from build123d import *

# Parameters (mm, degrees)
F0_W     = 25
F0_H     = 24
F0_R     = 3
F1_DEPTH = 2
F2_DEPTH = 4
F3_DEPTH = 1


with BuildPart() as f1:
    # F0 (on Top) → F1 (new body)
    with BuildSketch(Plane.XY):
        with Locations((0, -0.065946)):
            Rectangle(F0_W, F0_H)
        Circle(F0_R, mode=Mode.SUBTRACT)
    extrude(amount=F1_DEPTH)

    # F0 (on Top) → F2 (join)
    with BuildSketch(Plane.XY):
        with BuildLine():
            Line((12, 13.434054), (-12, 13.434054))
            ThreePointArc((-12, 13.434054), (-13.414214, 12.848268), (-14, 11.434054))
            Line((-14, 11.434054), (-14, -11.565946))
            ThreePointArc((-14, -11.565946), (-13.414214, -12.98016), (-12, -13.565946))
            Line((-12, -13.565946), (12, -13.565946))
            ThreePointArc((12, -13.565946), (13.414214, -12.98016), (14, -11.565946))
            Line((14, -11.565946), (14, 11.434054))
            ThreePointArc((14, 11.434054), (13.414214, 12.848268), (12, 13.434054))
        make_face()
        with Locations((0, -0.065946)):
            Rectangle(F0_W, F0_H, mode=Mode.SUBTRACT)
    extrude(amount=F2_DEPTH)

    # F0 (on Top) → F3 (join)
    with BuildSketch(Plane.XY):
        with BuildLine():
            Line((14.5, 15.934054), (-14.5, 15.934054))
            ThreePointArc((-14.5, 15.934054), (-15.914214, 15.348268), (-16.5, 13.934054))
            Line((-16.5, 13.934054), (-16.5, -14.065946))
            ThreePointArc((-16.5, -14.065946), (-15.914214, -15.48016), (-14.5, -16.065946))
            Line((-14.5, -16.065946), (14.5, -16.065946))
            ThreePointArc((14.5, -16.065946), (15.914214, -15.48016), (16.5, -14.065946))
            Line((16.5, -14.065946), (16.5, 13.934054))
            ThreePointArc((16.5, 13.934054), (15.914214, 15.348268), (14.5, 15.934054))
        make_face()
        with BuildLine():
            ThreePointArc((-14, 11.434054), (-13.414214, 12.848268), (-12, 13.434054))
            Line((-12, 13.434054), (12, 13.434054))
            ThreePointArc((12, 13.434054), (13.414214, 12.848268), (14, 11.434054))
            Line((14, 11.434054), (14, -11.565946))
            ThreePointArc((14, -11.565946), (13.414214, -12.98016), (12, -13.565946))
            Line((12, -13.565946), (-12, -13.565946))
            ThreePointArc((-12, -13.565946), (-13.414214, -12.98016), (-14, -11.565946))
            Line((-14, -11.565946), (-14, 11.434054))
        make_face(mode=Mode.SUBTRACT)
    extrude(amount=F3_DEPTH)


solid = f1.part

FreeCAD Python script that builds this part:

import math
import FreeCAD as App
import Part
import Sketcher
from FreeCAD import Vector
Q = App.Units.Quantity

doc = App.newDocument("Part")
body = doc.addObject("PartDesign::Body", "Body")

sketch1 = body.newObject("Sketcher::SketchObject", "Sketch")
sketch1.AttachmentSupport = (doc.getObject("XY_Plane"), [""])
sketch1.MapMode = "FlatFace"
sketch1.addGeometry(Part.LineSegment(Vector(-12.5, 11.934054, 0), Vector(-12.5, -12.065946, 0)), False)
sketch1.addGeometry(Part.LineSegment(Vector(-12.5, -12.065946, 0), Vector(12.5, -12.065946, 0)), False)
sketch1.addGeometry(Part.LineSegment(Vector(12.5, -12.065946, 0), Vector(12.5, 11.934054, 0)), False)
sketch1.addGeometry(Part.LineSegment(Vector(12.5, 11.934054, 0), Vector(-12.5, 11.934054, 0)), False)
sketch1.addGeometry(Part.Circle(Vector(0, 0, 0), Vector(0, 0, 1), 3), False)
sketch1.addConstraint(Sketcher.Constraint("Coincident", 0, 2, 1, 1))
sketch1.addConstraint(Sketcher.Constraint("Coincident", 1, 2, 2, 1))
sketch1.addConstraint(Sketcher.Constraint("Coincident", 2, 2, 3, 1))
sketch1.addConstraint(Sketcher.Constraint("Coincident", 3, 2, 0, 1))
sketch1.addConstraint(Sketcher.Constraint("Vertical", 0))
sketch1.addConstraint(Sketcher.Constraint("Horizontal", 1))
sketch1.addConstraint(Sketcher.Constraint("Vertical", 2))
sketch1.addConstraint(Sketcher.Constraint("Horizontal", 3))
sketch1.addConstraint(Sketcher.Constraint("Coincident", 4, 3, -1, 1))
sketch1.addConstraint(Sketcher.Constraint("Diameter", 4, Q("6 mm")))
sketch1.addConstraint(Sketcher.Constraint("DistanceX", 1, 1, 1, 2, Q("25 mm")))
sketch1.addConstraint(Sketcher.Constraint("DistanceY", 0, 2, 0, 1, Q("24 mm")))
sketch1.addConstraint(Sketcher.Constraint("DistanceX", 0, 2, -1, 1, Q("12.5 mm")))
sketch1.addConstraint(Sketcher.Constraint("DistanceY", 0, 2, -1, 1, Q("12.065946 mm")))
pad1 = body.newObject("PartDesign::Pad", "Pad")
pad1.Profile = sketch1
pad1.Length = 2

sketch2 = body.newObject("Sketcher::SketchObject", "Sketch001")
sketch2.AttachmentSupport = (doc.getObject("XY_Plane"), [""])
sketch2.MapMode = "FlatFace"
sketch2.addGeometry(Part.LineSegment(Vector(12, 13.434054, 0), Vector(-12, 13.434054, 0)), False)
sketch2.addGeometry(Part.ArcOfCircle(Part.Circle(Vector(-12.000001, 11.434055, 0), Vector(0, 0, 1), 1.999999), math.radians(89.999957), math.radians(180.000043)), False)
sketch2.addGeometry(Part.LineSegment(Vector(-14, 11.434054, 0), Vector(-14, -11.565946, 0)), False)
sketch2.addGeometry(Part.ArcOfCircle(Part.Circle(Vector(-12.000001, -11.565947, 0), Vector(0, 0, 1), 1.999999), math.radians(179.999957), math.radians(270.000043)), False)
sketch2.addGeometry(Part.LineSegment(Vector(-12, -13.565946, 0), Vector(12, -13.565946, 0)), False)
sketch2.addGeometry(Part.ArcOfCircle(Part.Circle(Vector(12.000001, -11.565947, 0), Vector(0, 0, 1), 1.999999), math.radians(-90.000043), math.radians(0.000043)), False)
sketch2.addGeometry(Part.LineSegment(Vector(14, -11.565946, 0), Vector(14, 11.434054, 0)), False)
sketch2.addGeometry(Part.ArcOfCircle(Part.Circle(Vector(12.000001, 11.434055, 0), Vector(0, 0, 1), 1.999999), math.radians(-0.000043), math.radians(90.000043)), False)
sketch2.addGeometry(Part.LineSegment(Vector(12.5, -12.065946, 0), Vector(-12.5, -12.065946, 0)), False)
sketch2.addGeometry(Part.LineSegment(Vector(-12.5, -12.065946, 0), Vector(-12.5, 11.934054, 0)), False)
sketch2.addGeometry(Part.LineSegment(Vector(-12.5, 11.934054, 0), Vector(12.5, 11.934054, 0)), False)
sketch2.addGeometry(Part.LineSegment(Vector(12.5, 11.934054, 0), Vector(12.5, -12.065946, 0)), False)
sketch2.addConstraint(Sketcher.Constraint("Tangent", 0, 2, 1, 1))
sketch2.addConstraint(Sketcher.Constraint("Tangent", 1, 2, 2, 1))
sketch2.addConstraint(Sketcher.Constraint("Tangent", 2, 2, 3, 1))
sketch2.addConstraint(Sketcher.Constraint("Tangent", 3, 2, 4, 1))
sketch2.addConstraint(Sketcher.Constraint("Tangent", 4, 2, 5, 1))
sketch2.addConstraint(Sketcher.Constraint("Tangent", 5, 2, 6, 1))
sketch2.addConstraint(Sketcher.Constraint("Tangent", 6, 2, 7, 1))
sketch2.addConstraint(Sketcher.Constraint("Tangent", 7, 2, 0, 1))
sketch2.addConstraint(Sketcher.Constraint("Coincident", 8, 2, 9, 1))
sketch2.addConstraint(Sketcher.Constraint("Coincident", 9, 2, 10, 1))
sketch2.addConstraint(Sketcher.Constraint("Coincident", 10, 2, 11, 1))
sketch2.addConstraint(Sketcher.Constraint("Coincident", 11, 2, 8, 1))
sketch2.addConstraint(Sketcher.Constraint("Horizontal", 0))
sketch2.addConstraint(Sketcher.Constraint("Vertical", 2))
sketch2.addConstraint(Sketcher.Constraint("Horizontal", 4))
sketch2.addConstraint(Sketcher.Constraint("Vertical", 6))
sketch2.addConstraint(Sketcher.Constraint("Horizontal", 8))
sketch2.addConstraint(Sketcher.Constraint("Vertical", 9))
sketch2.addConstraint(Sketcher.Constraint("Horizontal", 10))
sketch2.addConstraint(Sketcher.Constraint("Vertical", 11))
sketch2.addConstraint(Sketcher.Constraint("Equal", 1, 3))
sketch2.addConstraint(Sketcher.Constraint("Equal", 3, 5))
sketch2.addConstraint(Sketcher.Constraint("Equal", 5, 7))
sketch2.addConstraint(Sketcher.Constraint("Equal", 4, 9))
sketch2.addConstraint(Sketcher.Constraint("Radius", 1, Q("1.999999 mm")))
sketch2.addConstraint(Sketcher.Constraint("DistanceX", 0, 2, 0, 1, Q("24 mm")))
sketch2.addConstraint(Sketcher.Constraint("DistanceX", 8, 2, 8, 1, Q("25 mm")))
sketch2.addConstraint(Sketcher.Constraint("DistanceY", 2, 2, 2, 1, Q("23 mm")))
sketch2.addConstraint(Sketcher.Constraint("DistanceX", 1, 3, -1, 1, Q("12.000001 mm")))
sketch2.addConstraint(Sketcher.Constraint("DistanceX", 8, 2, -1, 1, Q("12.5 mm")))
sketch2.addConstraint(Sketcher.Constraint("DistanceY", 8, 2, 3, 3, Q("0.499999 mm")))
sketch2.addConstraint(Sketcher.Constraint("DistanceY", -1, 1, 1, 3, Q("11.434055 mm")))
pad2 = body.newObject("PartDesign::Pad", "Pad001")
pad2.Profile = sketch2
pad2.Length = 4

sketch3 = body.newObject("Sketcher::SketchObject", "Sketch002")
sketch3.AttachmentSupport = (doc.getObject("XY_Plane"), [""])
sketch3.MapMode = "FlatFace"
sketch3.addGeometry(Part.LineSegment(Vector(14.5, 15.934054, 0), Vector(-14.5, 15.934054, 0)), False)
sketch3.addGeometry(Part.ArcOfCircle(Part.Circle(Vector(-14.500001, 13.934055, 0), Vector(0, 0, 1), 1.999999), math.radians(89.999957), math.radians(180.000043)), False)
sketch3.addGeometry(Part.LineSegment(Vector(-16.5, 13.934054, 0), Vector(-16.5, -14.065946, 0)), False)
sketch3.addGeometry(Part.ArcOfCircle(Part.Circle(Vector(-14.500001, -14.065947, 0), Vector(0, 0, 1), 1.999999), math.radians(179.999957), math.radians(270.000043)), False)
sketch3.addGeometry(Part.LineSegment(Vector(-14.5, -16.065946, 0), Vector(14.5, -16.065946, 0)), False)
sketch3.addGeometry(Part.ArcOfCircle(Part.Circle(Vector(14.500001, -14.065947, 0), Vector(0, 0, 1), 1.999999), math.radians(-90.000043), math.radians(0.000043)), False)
sketch3.addGeometry(Part.LineSegment(Vector(16.5, -14.065946, 0), Vector(16.5, 13.934054, 0)), False)
sketch3.addGeometry(Part.ArcOfCircle(Part.Circle(Vector(14.500001, 13.934055, 0), Vector(0, 0, 1), 1.999999), math.radians(-0.000043), math.radians(90.000043)), False)
sketch3.addGeometry(Part.LineSegment(Vector(-14, -11.565946, 0), Vector(-14, 11.434054, 0)), False)
sketch3.addGeometry(Part.ArcOfCircle(Part.Circle(Vector(-12.000001, 11.434055, 0), Vector(0, 0, 1), 1.999999), math.radians(89.999957), math.radians(180.000043)), False)
sketch3.addGeometry(Part.LineSegment(Vector(-12, 13.434054, 0), Vector(12, 13.434054, 0)), False)
sketch3.addGeometry(Part.ArcOfCircle(Part.Circle(Vector(12.000001, 11.434055, 0), Vector(0, 0, 1), 1.999999), math.radians(-0.000043), math.radians(90.000043)), False)
sketch3.addGeometry(Part.LineSegment(Vector(14, 11.434054, 0), Vector(14, -11.565946, 0)), False)
sketch3.addGeometry(Part.ArcOfCircle(Part.Circle(Vector(12.000001, -11.565947, 0), Vector(0, 0, 1), 1.999999), math.radians(-90.000043), math.radians(0.000043)), False)
sketch3.addGeometry(Part.LineSegment(Vector(12, -13.565946, 0), Vector(-12, -13.565946, 0)), False)
sketch3.addGeometry(Part.ArcOfCircle(Part.Circle(Vector(-12.000001, -11.565947, 0), Vector(0, 0, 1), 1.999999), math.radians(179.999957), math.radians(270.000043)), False)
sketch3.addConstraint(Sketcher.Constraint("Tangent", 0, 2, 1, 1))
sketch3.addConstraint(Sketcher.Constraint("Tangent", 1, 2, 2, 1))
sketch3.addConstraint(Sketcher.Constraint("Tangent", 2, 2, 3, 1))
sketch3.addConstraint(Sketcher.Constraint("Tangent", 3, 2, 4, 1))
sketch3.addConstraint(Sketcher.Constraint("Tangent", 4, 2, 5, 1))
sketch3.addConstraint(Sketcher.Constraint("Tangent", 5, 2, 6, 1))
sketch3.addConstraint(Sketcher.Constraint("Tangent", 6, 2, 7, 1))
sketch3.addConstraint(Sketcher.Constraint("Tangent", 7, 2, 0, 1))
sketch3.addConstraint(Sketcher.Constraint("Tangent", 8, 2, 9, 2))
sketch3.addConstraint(Sketcher.Constraint("Tangent", 9, 1, 10, 1))
sketch3.addConstraint(Sketcher.Constraint("Tangent", 10, 2, 11, 2))
sketch3.addConstraint(Sketcher.Constraint("Tangent", 11, 1, 12, 1))
sketch3.addConstraint(Sketcher.Constraint("Tangent", 12, 2, 13, 2))
sketch3.addConstraint(Sketcher.Constraint("Tangent", 13, 1, 14, 1))
sketch3.addConstraint(Sketcher.Constraint("Tangent", 14, 2, 15, 2))
sketch3.addConstraint(Sketcher.Constraint("Tangent", 15, 1, 8, 1))
sketch3.addConstraint(Sketcher.Constraint("Horizontal", 0))
sketch3.addConstraint(Sketcher.Constraint("Vertical", 2))
sketch3.addConstraint(Sketcher.Constraint("Horizontal", 4))
sketch3.addConstraint(Sketcher.Constraint("Vertical", 6))
sketch3.addConstraint(Sketcher.Constraint("Vertical", 8))
sketch3.addConstraint(Sketcher.Constraint("Horizontal", 10))
sketch3.addConstraint(Sketcher.Constraint("Vertical", 12))
sketch3.addConstraint(Sketcher.Constraint("Horizontal", 14))
sketch3.addConstraint(Sketcher.Constraint("Equal", 1, 3))
sketch3.addConstraint(Sketcher.Constraint("Equal", 3, 5))
sketch3.addConstraint(Sketcher.Constraint("Equal", 5, 7))
sketch3.addConstraint(Sketcher.Constraint("Equal", 7, 9))
sketch3.addConstraint(Sketcher.Constraint("Equal", 9, 11))
sketch3.addConstraint(Sketcher.Constraint("Equal", 11, 13))
sketch3.addConstraint(Sketcher.Constraint("Equal", 13, 15))
sketch3.addConstraint(Sketcher.Constraint("Radius", 1, Q("1.999999 mm")))
sketch3.addConstraint(Sketcher.Constraint("DistanceX", 0, 2, 0, 1, Q("29 mm")))
sketch3.addConstraint(Sketcher.Constraint("DistanceX", 10, 1, 10, 2, Q("24 mm")))
sketch3.addConstraint(Sketcher.Constraint("DistanceY", 2, 2, 2, 1, Q("28 mm")))
sketch3.addConstraint(Sketcher.Constraint("DistanceY", 8, 1, 8, 2, Q("23 mm")))
sketch3.addConstraint(Sketcher.Constraint("DistanceX", 9, 3, -1, 1, Q("12.000001 mm")))
sketch3.addConstraint(Sketcher.Constraint("DistanceX", 1, 3, -1, 1, Q("14.500001 mm")))
sketch3.addConstraint(Sketcher.Constraint("DistanceY", 9, 3, 1, 3, Q("2.5 mm")))
sketch3.addConstraint(Sketcher.Constraint("DistanceY", -1, 1, 1, 3, Q("13.934055 mm")))
pad3 = body.newObject("PartDesign::Pad", "Pad002")
pad3.Profile = sketch3
pad3.Length = 1

doc.recompute()
